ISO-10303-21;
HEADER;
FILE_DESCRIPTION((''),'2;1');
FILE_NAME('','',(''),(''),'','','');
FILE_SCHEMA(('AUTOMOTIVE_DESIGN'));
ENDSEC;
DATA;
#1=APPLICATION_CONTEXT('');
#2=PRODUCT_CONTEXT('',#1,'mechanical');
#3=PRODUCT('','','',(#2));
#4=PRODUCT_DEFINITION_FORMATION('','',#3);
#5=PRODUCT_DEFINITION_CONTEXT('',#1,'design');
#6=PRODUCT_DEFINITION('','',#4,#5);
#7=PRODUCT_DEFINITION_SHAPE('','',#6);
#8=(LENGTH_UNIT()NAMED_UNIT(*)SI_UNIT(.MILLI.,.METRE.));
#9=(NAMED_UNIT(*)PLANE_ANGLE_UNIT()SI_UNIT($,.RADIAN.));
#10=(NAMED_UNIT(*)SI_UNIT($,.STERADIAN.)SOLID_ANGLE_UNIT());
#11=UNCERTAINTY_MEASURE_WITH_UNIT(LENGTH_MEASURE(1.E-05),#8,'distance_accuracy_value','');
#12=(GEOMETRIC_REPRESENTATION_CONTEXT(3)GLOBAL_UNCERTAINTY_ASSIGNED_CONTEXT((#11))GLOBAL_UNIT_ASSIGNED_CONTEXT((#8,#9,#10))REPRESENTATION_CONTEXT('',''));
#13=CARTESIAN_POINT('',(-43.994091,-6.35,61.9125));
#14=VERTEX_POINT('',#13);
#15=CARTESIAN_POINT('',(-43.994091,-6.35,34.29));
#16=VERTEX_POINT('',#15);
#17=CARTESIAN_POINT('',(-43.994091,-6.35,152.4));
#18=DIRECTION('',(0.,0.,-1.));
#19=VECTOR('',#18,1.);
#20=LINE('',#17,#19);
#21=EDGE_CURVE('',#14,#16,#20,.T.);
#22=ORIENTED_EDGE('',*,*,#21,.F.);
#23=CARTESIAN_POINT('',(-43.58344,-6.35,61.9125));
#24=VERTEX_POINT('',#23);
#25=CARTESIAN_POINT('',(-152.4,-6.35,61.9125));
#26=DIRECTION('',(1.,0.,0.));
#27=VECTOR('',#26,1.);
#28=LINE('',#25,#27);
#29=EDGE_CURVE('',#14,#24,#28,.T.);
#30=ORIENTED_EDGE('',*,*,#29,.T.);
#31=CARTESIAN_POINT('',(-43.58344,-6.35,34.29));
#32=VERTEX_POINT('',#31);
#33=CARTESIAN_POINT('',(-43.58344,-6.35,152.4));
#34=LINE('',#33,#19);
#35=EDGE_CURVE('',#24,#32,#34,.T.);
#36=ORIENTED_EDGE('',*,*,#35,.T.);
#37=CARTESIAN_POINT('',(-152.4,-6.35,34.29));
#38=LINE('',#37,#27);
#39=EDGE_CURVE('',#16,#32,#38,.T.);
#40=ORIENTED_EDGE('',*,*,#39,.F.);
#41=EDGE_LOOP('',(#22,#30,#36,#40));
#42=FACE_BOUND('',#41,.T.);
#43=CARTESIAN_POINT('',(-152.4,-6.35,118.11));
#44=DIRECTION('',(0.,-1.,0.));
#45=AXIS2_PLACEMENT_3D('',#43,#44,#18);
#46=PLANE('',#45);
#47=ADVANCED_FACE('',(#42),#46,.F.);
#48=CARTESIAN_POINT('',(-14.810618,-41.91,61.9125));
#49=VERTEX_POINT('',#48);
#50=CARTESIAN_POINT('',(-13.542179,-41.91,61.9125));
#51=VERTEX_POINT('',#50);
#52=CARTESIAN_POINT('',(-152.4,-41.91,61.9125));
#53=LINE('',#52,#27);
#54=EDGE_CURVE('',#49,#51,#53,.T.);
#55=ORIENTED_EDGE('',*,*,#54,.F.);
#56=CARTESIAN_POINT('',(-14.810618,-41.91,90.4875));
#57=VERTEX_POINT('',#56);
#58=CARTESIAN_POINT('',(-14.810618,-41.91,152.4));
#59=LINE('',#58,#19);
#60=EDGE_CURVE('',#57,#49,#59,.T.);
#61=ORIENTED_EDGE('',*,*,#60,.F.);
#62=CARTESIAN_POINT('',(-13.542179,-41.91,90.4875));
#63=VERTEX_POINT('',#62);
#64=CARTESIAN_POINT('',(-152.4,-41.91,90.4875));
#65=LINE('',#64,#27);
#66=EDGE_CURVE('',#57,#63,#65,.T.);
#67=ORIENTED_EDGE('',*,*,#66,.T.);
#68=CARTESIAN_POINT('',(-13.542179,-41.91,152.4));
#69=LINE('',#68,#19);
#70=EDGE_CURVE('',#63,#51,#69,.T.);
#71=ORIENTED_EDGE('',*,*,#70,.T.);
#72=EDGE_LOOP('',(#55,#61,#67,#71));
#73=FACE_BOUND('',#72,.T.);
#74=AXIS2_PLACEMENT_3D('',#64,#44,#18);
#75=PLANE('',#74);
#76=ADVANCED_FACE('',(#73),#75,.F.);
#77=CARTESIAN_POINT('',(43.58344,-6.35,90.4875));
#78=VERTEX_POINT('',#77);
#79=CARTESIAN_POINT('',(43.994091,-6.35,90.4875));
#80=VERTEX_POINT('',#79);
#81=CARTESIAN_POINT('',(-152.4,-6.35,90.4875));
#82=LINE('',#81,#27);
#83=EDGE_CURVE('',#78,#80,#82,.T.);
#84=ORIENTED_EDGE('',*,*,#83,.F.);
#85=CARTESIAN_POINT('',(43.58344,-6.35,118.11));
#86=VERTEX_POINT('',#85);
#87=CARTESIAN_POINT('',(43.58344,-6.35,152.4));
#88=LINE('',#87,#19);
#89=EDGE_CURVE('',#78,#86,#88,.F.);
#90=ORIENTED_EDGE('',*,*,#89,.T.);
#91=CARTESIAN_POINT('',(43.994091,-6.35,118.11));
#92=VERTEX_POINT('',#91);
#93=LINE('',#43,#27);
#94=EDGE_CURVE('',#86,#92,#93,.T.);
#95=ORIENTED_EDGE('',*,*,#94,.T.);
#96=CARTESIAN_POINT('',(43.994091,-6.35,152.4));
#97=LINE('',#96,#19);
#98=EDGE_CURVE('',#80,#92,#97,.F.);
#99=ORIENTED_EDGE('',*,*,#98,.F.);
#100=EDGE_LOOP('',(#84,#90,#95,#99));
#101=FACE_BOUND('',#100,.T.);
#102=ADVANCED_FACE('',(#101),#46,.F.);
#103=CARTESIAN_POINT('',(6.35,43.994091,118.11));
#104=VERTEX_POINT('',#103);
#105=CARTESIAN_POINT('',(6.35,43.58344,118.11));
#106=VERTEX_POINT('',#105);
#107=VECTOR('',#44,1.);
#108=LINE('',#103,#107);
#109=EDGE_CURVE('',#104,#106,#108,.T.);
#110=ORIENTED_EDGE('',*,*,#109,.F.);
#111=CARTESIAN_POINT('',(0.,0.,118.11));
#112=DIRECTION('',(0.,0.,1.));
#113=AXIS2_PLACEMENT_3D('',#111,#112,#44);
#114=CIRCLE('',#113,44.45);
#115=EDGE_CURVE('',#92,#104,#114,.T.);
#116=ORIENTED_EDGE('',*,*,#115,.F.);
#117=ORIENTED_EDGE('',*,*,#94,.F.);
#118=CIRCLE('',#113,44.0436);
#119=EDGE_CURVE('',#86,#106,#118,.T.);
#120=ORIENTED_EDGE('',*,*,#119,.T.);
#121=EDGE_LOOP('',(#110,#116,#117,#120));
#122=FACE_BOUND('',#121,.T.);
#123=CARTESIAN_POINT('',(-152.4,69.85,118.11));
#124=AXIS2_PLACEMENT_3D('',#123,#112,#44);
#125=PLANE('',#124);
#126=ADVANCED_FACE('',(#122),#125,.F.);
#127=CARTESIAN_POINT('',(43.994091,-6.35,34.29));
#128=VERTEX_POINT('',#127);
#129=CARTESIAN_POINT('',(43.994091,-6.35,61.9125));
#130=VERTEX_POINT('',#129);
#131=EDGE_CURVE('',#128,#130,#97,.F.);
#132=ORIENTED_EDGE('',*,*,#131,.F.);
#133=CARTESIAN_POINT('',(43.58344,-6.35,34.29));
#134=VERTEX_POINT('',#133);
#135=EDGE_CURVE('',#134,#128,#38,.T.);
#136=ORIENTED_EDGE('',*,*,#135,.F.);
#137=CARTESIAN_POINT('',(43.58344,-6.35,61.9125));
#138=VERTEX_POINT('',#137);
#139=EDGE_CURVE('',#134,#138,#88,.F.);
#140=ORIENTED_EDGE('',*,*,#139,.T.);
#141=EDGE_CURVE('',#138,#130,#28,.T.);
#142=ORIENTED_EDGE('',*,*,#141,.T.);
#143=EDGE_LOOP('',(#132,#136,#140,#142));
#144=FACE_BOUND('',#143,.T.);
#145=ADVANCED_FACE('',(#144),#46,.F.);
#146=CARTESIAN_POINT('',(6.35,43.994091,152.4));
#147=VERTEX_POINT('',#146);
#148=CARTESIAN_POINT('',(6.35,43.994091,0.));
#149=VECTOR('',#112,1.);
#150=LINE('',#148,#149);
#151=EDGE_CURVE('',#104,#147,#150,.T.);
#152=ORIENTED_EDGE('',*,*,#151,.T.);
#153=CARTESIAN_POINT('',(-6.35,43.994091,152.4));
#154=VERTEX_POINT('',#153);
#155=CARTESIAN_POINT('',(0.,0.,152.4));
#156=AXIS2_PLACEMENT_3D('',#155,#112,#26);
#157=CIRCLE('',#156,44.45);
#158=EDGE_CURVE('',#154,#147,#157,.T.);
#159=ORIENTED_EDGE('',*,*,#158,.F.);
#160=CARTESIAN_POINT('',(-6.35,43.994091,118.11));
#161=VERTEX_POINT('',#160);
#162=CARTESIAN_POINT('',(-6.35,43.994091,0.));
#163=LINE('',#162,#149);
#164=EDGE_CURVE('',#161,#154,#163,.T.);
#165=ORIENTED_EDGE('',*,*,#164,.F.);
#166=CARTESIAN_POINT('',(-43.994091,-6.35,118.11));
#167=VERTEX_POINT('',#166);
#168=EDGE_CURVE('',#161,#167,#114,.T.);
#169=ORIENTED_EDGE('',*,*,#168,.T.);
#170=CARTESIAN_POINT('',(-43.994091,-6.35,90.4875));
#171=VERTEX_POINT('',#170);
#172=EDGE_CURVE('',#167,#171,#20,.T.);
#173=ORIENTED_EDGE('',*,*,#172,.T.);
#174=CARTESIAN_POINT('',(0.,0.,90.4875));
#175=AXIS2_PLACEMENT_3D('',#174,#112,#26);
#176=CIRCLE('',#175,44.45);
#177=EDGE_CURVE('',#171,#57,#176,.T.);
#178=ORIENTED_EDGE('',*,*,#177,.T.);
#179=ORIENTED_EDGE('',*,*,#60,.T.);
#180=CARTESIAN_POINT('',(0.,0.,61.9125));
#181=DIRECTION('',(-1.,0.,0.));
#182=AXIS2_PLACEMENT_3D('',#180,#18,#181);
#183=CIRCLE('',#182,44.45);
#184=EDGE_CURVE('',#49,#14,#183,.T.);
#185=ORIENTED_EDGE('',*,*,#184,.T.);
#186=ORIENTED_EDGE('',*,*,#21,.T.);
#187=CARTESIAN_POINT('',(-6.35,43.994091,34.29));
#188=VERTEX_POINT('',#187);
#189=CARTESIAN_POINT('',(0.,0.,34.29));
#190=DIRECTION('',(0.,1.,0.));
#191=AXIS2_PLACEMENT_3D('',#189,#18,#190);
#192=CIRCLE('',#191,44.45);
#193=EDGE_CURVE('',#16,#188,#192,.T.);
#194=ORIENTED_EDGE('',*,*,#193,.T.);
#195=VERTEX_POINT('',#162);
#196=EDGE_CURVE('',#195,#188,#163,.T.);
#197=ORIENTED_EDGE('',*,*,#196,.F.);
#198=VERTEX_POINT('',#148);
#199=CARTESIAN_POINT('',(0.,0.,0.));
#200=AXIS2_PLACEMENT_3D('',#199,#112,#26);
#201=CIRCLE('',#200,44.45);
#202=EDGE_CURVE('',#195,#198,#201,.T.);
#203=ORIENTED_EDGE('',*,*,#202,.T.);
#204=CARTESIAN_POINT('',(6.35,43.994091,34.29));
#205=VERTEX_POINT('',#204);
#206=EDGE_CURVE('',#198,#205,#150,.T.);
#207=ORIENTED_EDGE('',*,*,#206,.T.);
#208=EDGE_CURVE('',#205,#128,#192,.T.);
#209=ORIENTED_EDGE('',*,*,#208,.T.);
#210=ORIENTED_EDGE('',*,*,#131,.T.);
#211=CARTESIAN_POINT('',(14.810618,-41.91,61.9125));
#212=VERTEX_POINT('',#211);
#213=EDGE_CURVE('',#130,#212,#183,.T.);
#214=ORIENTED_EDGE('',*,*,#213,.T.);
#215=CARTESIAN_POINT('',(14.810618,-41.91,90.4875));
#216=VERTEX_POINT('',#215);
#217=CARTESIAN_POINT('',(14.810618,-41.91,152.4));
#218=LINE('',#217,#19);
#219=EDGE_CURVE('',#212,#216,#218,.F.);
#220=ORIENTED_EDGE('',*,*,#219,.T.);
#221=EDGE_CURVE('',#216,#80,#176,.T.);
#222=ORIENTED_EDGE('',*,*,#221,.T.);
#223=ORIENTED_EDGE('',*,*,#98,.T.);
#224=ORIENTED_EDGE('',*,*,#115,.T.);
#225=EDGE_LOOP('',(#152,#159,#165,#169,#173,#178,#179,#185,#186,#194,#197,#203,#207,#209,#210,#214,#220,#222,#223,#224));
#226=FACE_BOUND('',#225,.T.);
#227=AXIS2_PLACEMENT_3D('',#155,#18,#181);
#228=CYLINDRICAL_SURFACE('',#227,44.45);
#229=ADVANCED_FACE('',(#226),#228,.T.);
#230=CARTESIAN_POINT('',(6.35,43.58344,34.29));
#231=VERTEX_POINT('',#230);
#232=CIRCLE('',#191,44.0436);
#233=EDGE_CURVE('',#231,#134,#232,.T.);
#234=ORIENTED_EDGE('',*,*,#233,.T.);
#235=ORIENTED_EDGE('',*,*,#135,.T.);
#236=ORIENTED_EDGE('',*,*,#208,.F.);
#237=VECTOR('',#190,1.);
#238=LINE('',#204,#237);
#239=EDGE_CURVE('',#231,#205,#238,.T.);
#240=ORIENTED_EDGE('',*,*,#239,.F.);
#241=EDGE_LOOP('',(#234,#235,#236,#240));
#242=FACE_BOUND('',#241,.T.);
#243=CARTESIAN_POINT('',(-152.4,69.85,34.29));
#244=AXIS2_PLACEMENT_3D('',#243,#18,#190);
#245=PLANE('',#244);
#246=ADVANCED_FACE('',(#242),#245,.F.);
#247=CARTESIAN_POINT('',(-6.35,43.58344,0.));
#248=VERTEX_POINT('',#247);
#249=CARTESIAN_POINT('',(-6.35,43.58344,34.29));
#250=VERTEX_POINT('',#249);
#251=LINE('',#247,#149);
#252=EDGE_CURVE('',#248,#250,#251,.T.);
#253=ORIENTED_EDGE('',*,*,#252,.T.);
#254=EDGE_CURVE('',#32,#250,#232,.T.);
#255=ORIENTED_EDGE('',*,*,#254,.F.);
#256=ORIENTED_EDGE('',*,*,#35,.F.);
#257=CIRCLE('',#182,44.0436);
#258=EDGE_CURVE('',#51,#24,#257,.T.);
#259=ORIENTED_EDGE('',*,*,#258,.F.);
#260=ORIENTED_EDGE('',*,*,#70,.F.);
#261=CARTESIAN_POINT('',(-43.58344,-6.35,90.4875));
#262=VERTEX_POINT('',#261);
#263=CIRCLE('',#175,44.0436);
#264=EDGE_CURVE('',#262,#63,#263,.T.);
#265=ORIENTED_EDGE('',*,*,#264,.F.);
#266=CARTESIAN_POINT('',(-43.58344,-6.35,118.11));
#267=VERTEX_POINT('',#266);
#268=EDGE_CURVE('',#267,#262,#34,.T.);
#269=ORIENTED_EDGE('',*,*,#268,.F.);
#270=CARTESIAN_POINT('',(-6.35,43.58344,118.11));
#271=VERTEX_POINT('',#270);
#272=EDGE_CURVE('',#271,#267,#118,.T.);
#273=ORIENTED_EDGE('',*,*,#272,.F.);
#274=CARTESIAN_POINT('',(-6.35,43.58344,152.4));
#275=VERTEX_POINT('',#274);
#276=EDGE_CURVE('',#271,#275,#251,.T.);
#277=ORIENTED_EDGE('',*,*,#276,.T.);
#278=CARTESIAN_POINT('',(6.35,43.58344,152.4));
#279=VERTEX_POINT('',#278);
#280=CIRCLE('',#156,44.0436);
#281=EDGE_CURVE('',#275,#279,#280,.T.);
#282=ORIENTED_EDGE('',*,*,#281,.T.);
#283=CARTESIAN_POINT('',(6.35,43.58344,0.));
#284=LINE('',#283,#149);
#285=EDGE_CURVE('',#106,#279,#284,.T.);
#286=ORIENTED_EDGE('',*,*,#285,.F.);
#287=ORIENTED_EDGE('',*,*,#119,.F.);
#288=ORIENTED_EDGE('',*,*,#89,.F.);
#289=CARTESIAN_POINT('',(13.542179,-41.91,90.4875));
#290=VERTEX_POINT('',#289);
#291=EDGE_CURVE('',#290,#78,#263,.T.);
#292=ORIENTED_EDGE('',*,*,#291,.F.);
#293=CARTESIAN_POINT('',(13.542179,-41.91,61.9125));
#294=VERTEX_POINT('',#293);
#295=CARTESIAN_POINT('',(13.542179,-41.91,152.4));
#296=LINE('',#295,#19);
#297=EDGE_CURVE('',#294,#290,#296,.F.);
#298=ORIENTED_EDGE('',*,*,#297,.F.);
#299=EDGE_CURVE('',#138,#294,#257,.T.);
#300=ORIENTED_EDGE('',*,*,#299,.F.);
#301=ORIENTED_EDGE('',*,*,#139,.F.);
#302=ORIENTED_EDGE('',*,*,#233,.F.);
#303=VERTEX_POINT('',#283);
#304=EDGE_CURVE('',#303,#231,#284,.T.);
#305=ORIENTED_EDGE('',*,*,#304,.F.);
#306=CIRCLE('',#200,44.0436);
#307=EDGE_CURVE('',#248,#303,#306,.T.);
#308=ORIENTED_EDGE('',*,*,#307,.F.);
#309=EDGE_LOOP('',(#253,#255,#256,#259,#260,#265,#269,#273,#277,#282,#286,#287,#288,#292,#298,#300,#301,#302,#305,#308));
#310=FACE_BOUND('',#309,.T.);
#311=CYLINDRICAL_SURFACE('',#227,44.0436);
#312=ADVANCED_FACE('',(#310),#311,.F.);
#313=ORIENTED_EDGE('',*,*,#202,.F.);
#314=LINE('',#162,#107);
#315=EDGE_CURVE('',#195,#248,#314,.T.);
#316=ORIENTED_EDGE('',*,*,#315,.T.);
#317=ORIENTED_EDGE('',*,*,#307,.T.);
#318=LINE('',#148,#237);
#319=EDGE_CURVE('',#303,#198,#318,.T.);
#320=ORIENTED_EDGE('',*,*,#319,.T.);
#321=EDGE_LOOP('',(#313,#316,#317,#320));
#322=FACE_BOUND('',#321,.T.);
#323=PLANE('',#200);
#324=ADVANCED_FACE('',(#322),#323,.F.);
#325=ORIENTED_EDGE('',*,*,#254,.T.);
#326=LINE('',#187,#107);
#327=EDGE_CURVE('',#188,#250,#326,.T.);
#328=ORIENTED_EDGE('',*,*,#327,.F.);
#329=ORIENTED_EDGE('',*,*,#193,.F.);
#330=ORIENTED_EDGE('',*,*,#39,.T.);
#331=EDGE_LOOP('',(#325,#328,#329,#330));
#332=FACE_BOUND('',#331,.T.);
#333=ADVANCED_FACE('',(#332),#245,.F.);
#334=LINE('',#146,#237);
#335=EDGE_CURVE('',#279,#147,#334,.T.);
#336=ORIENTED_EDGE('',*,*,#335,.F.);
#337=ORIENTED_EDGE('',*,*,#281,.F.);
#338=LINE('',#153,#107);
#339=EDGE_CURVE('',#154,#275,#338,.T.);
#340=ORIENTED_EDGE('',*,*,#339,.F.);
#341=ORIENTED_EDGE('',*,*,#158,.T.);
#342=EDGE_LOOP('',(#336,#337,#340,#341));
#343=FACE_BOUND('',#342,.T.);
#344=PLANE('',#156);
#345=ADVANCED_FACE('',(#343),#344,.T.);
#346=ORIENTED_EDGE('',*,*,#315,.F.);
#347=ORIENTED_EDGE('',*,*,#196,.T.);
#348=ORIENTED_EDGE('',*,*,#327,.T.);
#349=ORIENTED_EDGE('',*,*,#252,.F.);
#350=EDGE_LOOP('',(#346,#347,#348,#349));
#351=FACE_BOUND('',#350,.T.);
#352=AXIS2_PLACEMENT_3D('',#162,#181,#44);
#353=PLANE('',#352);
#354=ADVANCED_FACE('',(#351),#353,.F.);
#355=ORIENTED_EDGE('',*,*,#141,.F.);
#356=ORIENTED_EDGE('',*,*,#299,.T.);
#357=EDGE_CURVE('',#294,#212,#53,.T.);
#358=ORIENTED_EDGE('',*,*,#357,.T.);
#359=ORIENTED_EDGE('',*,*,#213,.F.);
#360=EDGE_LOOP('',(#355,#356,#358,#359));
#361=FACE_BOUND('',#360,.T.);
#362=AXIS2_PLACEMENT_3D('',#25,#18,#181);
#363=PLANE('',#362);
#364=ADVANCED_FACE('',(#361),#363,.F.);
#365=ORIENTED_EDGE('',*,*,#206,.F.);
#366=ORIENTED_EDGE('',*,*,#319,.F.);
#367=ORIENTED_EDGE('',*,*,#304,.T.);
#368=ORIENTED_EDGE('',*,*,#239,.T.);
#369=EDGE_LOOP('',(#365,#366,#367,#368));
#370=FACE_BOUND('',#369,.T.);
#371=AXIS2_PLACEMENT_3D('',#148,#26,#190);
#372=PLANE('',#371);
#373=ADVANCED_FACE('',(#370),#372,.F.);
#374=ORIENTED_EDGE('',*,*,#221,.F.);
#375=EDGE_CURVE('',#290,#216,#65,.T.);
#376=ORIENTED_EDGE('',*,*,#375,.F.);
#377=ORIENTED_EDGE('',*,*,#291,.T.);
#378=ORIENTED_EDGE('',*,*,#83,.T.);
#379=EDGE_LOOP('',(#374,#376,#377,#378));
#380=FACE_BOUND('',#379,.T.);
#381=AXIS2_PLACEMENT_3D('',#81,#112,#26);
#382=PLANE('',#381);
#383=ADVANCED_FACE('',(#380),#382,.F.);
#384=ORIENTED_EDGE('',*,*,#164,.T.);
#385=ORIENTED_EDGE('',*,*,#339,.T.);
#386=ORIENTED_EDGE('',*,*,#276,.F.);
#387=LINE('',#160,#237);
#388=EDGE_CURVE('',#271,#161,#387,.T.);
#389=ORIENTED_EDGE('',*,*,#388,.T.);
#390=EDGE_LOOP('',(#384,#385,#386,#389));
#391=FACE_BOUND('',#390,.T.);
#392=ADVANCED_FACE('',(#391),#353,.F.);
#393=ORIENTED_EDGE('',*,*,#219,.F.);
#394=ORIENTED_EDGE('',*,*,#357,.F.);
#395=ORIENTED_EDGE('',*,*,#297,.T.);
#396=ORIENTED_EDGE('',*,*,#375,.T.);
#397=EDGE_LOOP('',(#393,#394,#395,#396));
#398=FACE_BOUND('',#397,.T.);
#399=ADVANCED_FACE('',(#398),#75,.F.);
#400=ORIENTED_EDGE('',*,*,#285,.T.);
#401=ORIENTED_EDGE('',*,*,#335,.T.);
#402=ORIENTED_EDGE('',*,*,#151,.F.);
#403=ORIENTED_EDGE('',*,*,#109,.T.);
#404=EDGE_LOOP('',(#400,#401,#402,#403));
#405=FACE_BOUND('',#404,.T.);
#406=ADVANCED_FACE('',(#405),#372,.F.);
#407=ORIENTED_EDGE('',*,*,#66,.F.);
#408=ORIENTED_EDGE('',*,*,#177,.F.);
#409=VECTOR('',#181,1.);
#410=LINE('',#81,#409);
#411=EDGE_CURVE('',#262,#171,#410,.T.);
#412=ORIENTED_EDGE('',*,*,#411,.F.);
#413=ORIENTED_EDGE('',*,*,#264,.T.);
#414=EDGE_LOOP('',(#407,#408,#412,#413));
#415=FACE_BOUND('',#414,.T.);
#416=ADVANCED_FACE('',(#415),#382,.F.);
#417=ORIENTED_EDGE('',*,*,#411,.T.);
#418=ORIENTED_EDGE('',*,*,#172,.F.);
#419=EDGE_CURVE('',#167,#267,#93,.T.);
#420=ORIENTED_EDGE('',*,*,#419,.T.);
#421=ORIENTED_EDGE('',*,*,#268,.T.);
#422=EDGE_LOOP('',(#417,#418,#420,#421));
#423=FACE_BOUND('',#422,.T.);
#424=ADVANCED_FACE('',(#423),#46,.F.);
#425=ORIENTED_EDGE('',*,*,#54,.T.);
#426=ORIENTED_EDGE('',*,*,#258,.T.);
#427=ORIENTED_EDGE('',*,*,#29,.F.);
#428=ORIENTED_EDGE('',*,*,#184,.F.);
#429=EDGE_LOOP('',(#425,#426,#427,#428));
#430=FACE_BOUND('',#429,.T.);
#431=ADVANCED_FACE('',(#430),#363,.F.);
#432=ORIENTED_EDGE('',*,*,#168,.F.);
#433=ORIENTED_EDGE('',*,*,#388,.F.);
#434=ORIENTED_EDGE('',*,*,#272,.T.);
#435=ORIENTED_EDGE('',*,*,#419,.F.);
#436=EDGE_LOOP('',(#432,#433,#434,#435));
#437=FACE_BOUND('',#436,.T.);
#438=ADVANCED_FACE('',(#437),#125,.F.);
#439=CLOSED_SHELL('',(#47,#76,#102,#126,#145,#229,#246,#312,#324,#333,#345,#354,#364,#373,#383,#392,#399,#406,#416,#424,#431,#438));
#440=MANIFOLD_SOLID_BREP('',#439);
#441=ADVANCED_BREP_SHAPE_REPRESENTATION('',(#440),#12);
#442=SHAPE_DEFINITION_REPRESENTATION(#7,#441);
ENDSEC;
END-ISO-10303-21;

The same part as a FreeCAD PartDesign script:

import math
import FreeCAD as App
import Part
import Sketcher

V = App.Vector
Q = App.Units.Quantity


def add_polygon(sketch, points):
    """Adds a closed chain of lines whose ends are joined by coincident constraints."""
    first, n = sketch.GeometryCount, len(points)
    for a, b in zip(points, points[1:] + points[:1]):
        sketch.addGeometry(Part.LineSegment(App.Vector(*a, 0), App.Vector(*b, 0)), False)
    for i in range(n):
        sketch.addConstraint(Sketcher.Constraint("Coincident", first + i, 2, first + (i + 1) % n, 1))

doc = App.newDocument("Part")
body = doc.addObject("PartDesign::Body", "Body")

sketch1 = body.newObject("Sketcher::SketchObject", "Sketch")
sketch1.AttachmentSupport = (doc.getObject("XY_Plane"), [""])
sketch1.MapMode = "FlatFace"
sketch1.addGeometry([
    Part.Circle(V(0, 0, 0), V(0, 0, 1), 44),
    Part.Circle(V(0, 0, 0), V(0, 0, 1), 44),
], False)
sketch1.addConstraint([
    Sketcher.Constraint("Coincident", 0, 3, -1, 1),
    Sketcher.Constraint("Coincident", 1, 3, -1, 1),
    Sketcher.Constraint("Diameter", 0, Q("3.5 in")),
    Sketcher.Constraint("Diameter", 1, Q("3.468 in")),
])
pad1 = body.newObject("PartDesign::Pad", "Pad")
pad1.Profile = sketch1
pad1.Length = Q("6 in")

sketch2 = body.newObject("Sketcher::SketchObject", "Sketch001")
sketch2.AttachmentSupport = (doc.getObject("XY_Plane"), [""])
sketch2.MapMode = "FlatFace"
sketch2.addGeometry([
    Part.LineSegment(V(-6.35, 43.99, 0), V(-6.35, 43.58, 0)),
    Part.ArcOfCircle(Part.Circle(V(0, 0, 0), V(0, 0, 1), 44.04), math.radians(81.71), math.radians(98.29)),
    Part.LineSegment(V(6.35, 43.58, 0), V(6.35, 43.99, 0)),
    Part.ArcOfCircle(Part.Circle(V(0, 0, 0), V(0, 0, 1), 44.45), math.radians(81.79), math.radians(98.21)),
], False)
sketch2.addConstraint([
    Sketcher.Constraint("Coincident", 0, 2, 1, 2),
    Sketcher.Constraint("Coincident", 1, 1, 2, 1),
    Sketcher.Constraint("Coincident", 2, 2, 3, 1),
    Sketcher.Constraint("Coincident", 3, 2, 0, 1),
    Sketcher.Constraint("Vertical", 0),
    Sketcher.Constraint("Vertical", 2),
    Sketcher.Constraint("Coincident", 1, 3, -1, 1),
    Sketcher.Constraint("Coincident", 3, 3, -1, 1),
    Sketcher.Constraint("Horizontal", 0, 2, 1, 1),
    Sketcher.Constraint("Radius", 3, Q("1.75 in")),
    Sketcher.Constraint("Radius", 1, Q("1.734 in")),
    Sketcher.Constraint("DistanceX", 0, 2, 1, 1, Q("0.5 in")),
])
pocket1 = body.newObject("PartDesign::Pocket", "Pocket")
pocket1.Profile = sketch2
pocket1.Length = Q("6 in")
pocket1.Reversed = True

sketch3 = body.newObject("Sketcher::SketchObject", "Sketch002")
sketch3.AttachmentSupport = (doc.getObject("YZ_Plane"), [""])
sketch3.MapMode = "FlatFace"
add_polygon(sketch3, [(70, 118), (-6, 118), (-6, 34), (70, 34)])
sketch3.addConstraint([
    Sketcher.Constraint("Horizontal", 0),
    Sketcher.Constraint("Vertical", 1),
    Sketcher.Constraint("Horizontal", 2),
    Sketcher.Constraint("Vertical", 3),
    Sketcher.Constraint("DistanceX", 0, 2, 0, 1, Q("3 in")),
    Sketcher.Constraint("DistanceY", 1, 2, 1, 1, Q("3.3 in")),
    Sketcher.Constraint("DistanceX", 0, 2, -1, 1, Q("0.25 in")),
    Sketcher.Constraint("DistanceY", -1, 1, 0, 2, Q("4.65 in")),
])
pocket2 = body.newObject("PartDesign::Pocket", "Pocket001")
pocket2.Profile = sketch3
pocket2.Type = "ThroughAll"
pocket2.Midplane = True

sketch4 = body.newObject("Sketcher::SketchObject", "Sketch003")
sketch4.AttachmentSupport = (doc.getObject("YZ_Plane"), [""])
sketch4.MapMode = "FlatFace"
add_polygon(sketch4, [(-6, 90), (-42, 90), (-42, 62), (-6, 62)])
sketch4.addConstraint([
    Sketcher.Constraint("Horizontal", 0),
    Sketcher.Constraint("Vertical", 1),
    Sketcher.Constraint("Horizontal", 2),
    Sketcher.Constraint("Vertical", 3),
    Sketcher.Constraint("DistanceX", 0, 2, 0, 1, Q("1.4 in")),
    Sketcher.Constraint("DistanceY", 1, 2, 1, 1, Q("1.125 in")),
    Sketcher.Constraint("DistanceX", 0, 2, -1, 1, Q("1.65 in")),
    Sketcher.Constraint("DistanceY", -1, 1, 0, 2, Q("3.5625 in")),
])
pocket3 = body.newObject("PartDesign::Pocket", "Pocket002")
pocket3.Profile = sketch4
pocket3.Type = "ThroughAll"
pocket3.Midplane = True

doc.recompute()
